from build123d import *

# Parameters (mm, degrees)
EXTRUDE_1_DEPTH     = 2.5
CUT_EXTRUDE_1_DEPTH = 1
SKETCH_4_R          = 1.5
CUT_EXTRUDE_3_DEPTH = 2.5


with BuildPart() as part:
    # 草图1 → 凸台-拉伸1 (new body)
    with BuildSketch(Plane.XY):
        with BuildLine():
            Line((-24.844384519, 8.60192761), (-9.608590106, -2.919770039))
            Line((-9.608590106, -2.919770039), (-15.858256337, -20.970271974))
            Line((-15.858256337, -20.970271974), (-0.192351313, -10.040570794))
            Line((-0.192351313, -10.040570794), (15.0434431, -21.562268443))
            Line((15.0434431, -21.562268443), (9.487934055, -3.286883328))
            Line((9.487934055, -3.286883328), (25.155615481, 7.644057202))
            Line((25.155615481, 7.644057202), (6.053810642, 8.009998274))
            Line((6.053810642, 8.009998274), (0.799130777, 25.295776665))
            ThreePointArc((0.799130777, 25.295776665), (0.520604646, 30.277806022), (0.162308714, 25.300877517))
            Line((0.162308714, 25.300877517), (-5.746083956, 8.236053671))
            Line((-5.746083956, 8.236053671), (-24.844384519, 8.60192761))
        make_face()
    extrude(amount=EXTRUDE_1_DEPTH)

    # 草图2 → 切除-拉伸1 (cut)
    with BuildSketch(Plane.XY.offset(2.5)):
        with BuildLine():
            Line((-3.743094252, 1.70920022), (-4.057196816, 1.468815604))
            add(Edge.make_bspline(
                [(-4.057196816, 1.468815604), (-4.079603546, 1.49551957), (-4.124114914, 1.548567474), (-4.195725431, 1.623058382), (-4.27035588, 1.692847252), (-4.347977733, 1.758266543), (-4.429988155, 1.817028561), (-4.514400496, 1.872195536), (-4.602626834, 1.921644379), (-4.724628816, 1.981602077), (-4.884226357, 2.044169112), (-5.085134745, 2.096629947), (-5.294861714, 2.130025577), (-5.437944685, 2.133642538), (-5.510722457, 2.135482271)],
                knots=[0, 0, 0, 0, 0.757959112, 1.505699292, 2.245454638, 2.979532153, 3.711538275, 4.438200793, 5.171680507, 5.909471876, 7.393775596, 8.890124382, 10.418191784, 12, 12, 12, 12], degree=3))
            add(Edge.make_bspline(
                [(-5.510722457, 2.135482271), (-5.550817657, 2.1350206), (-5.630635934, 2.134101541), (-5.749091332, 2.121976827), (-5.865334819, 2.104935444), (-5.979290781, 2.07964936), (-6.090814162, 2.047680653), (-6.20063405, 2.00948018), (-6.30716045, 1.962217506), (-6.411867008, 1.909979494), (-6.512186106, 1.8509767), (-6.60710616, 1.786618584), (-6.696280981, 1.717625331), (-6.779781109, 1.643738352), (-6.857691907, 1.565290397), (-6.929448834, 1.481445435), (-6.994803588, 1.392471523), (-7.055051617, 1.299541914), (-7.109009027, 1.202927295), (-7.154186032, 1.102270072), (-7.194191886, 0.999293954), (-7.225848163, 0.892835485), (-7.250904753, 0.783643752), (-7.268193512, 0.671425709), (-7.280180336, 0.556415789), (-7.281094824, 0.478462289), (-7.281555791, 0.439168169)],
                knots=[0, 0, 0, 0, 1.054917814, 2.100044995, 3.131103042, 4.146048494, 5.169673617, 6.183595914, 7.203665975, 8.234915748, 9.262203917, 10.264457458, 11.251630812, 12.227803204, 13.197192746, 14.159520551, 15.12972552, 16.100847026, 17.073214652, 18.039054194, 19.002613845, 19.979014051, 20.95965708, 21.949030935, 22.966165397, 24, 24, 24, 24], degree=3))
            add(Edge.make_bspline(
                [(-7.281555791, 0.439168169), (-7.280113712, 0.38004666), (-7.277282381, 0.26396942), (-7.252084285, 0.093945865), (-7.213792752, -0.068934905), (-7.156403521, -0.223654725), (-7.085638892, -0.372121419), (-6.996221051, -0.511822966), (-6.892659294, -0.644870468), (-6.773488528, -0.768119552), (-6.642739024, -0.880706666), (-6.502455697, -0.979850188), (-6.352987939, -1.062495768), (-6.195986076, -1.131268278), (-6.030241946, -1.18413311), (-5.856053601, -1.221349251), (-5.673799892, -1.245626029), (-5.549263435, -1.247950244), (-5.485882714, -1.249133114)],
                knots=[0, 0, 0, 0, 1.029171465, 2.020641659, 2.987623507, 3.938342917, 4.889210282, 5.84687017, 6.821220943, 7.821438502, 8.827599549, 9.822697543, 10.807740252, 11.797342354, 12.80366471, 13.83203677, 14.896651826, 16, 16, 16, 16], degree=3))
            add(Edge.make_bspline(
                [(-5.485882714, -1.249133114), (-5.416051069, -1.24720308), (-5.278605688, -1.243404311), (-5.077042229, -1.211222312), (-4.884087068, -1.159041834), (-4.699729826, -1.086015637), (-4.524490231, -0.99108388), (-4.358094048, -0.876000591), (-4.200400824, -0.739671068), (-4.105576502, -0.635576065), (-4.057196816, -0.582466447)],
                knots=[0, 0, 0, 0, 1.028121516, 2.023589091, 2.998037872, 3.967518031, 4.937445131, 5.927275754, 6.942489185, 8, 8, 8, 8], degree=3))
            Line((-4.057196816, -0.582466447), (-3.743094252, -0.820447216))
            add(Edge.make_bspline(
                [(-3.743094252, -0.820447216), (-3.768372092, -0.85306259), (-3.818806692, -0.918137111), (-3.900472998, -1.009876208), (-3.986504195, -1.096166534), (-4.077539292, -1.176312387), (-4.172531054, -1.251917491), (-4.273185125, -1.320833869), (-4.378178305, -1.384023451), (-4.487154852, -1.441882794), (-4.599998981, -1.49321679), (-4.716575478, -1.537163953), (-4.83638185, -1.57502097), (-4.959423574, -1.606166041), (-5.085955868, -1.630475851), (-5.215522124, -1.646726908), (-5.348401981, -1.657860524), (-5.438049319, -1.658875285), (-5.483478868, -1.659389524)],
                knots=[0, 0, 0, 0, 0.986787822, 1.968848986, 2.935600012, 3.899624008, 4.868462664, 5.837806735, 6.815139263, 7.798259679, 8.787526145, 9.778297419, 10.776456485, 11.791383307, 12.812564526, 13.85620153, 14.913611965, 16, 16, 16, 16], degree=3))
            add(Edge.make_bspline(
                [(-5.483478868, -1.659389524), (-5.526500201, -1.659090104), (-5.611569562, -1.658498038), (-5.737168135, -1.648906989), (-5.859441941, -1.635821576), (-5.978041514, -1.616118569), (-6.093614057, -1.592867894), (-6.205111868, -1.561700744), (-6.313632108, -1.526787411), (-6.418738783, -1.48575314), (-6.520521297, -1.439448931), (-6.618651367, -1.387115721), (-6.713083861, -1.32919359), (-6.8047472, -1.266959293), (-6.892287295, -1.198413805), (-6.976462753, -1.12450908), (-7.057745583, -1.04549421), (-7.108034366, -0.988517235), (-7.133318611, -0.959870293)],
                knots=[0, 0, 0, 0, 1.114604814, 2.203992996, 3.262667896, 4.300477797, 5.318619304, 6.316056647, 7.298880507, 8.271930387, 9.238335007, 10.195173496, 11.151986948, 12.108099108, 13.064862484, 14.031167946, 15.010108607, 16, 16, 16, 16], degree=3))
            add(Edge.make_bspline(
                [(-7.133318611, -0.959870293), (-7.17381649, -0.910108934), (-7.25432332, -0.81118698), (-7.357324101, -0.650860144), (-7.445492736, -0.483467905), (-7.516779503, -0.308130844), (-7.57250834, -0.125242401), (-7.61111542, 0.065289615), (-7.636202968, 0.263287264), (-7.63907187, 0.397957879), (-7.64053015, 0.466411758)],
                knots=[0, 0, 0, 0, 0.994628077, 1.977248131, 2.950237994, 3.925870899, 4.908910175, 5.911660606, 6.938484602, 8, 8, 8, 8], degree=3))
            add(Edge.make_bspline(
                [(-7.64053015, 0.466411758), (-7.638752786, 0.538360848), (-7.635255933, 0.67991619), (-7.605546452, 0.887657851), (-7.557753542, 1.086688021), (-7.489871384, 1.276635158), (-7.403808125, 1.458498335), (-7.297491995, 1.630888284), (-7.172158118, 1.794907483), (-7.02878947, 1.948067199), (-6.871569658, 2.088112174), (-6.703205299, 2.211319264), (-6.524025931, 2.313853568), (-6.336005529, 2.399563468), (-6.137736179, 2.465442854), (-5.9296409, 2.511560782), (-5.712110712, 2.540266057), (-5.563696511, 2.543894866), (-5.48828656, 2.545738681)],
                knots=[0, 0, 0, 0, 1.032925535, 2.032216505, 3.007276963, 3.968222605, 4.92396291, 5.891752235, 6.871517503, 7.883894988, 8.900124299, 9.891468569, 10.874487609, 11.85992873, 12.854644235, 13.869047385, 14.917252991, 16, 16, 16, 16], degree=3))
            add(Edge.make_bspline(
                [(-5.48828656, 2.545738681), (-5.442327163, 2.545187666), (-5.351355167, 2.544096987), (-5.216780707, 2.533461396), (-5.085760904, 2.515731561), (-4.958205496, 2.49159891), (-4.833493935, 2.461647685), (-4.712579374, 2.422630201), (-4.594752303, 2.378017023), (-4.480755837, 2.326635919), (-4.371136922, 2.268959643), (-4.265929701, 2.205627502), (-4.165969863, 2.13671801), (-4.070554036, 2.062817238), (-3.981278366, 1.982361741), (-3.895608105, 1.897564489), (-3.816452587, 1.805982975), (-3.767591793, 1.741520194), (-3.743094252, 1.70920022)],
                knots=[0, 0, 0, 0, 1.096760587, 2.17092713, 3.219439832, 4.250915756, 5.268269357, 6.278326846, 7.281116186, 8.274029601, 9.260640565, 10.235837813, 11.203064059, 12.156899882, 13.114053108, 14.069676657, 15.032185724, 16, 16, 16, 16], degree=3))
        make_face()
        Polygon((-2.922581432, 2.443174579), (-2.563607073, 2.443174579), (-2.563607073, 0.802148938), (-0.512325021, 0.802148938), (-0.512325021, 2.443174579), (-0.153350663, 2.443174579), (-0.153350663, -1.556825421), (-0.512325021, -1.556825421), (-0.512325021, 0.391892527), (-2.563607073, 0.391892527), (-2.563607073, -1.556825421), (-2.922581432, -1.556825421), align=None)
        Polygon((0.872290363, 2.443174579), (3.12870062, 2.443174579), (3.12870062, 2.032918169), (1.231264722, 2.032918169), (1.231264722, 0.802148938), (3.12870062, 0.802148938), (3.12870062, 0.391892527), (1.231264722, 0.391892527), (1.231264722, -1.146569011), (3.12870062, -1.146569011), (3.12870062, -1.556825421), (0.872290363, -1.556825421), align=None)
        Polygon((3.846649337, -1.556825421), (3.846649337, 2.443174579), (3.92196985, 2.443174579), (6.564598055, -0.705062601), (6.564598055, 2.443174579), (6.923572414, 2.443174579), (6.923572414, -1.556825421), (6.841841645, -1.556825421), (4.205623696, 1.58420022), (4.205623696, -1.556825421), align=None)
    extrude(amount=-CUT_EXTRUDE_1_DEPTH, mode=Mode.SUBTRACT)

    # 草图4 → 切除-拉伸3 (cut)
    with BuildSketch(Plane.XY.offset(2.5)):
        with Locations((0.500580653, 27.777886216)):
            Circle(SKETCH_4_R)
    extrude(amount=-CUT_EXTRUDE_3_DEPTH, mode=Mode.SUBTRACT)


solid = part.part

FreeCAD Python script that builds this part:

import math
import FreeCAD as App
import Part
import Sketcher

V = App.Vector
Q = App.Units.Quantity


def add_polygon(sketch, points):
    """Adds a closed chain of lines whose ends are joined by coincident constraints."""
    first, n = sketch.GeometryCount, len(points)
    for a, b in zip(points, points[1:] + points[:1]):
        sketch.addGeometry(Part.LineSegment(App.Vector(*a, 0), App.Vector(*b, 0)), False)
    for i in range(n):
        sketch.addConstraint(Sketcher.Constraint("Coincident", first + i, 2, first + (i + 1) % n, 1))

doc = App.newDocument("Part")
body = doc.addObject("PartDesign::Body", "Body")

# Sketch on XY plane
sketch1 = doc.addObject("Sketcher::SketchObject", "Sketch")
body.addObject(sketch1)
sketch1.AttachmentSupport = (doc.XY_Plane, [""])
sketch1.MapMode = "FlatFace"
sketch1.addGeometry(Part.LineSegment(V(-24.844385, 8.601928, 0), V(-9.60859, -2.91977, 0)), False)
sketch1.addGeometry(Part.LineSegment(V(-9.60859, -2.91977, 0), V(-15.858256, -20.970272, 0)), False)
sketch1.addGeometry(Part.LineSegment(V(-15.858256, -20.970272, 0), V(-0.192351, -10.040571, 0)), False)
sketch1.addGeometry(Part.LineSegment(V(-0.192351, -10.040571, 0), V(15.043443, -21.562268, 0)), False)
sketch1.addGeometry(Part.LineSegment(V(15.043443, -21.562268, 0), V(9.487934, -3.286883, 0)), False)
sketch1.addGeometry(Part.LineSegment(V(9.487934, -3.286883, 0), V(25.155615, 7.644057, 0)), False)
sketch1.addGeometry(Part.LineSegment(V(25.155615, 7.644057, 0), V(6.053811, 8.009998, 0)), False)
sketch1.addGeometry(Part.LineSegment(V(6.053811, 8.009998, 0), V(0.799131, 25.295777, 0)), False)
sketch1.addGeometry(Part.ArcOfCircle(Part.Circle(V(0.500581, 27.777886, 0), V(0, 0, 1), 2.5), math.radians(-83.141367), math.radians(262.223525)), False)
sketch1.addGeometry(Part.LineSegment(V(0.162309, 25.300878, 0), V(-5.746084, 8.236054, 0)), False)
sketch1.addGeometry(Part.LineSegment(V(-5.746084, 8.236054, 0), V(-24.844385, 8.601928, 0)), False)
sketch1.addConstraint(Sketcher.Constraint("Coincident", 0, 2, 1, 1))
sketch1.addConstraint(Sketcher.Constraint("Coincident", 1, 2, 2, 1))
sketch1.addConstraint(Sketcher.Constraint("Coincident", 2, 2, 3, 1))
sketch1.addConstraint(Sketcher.Constraint("Coincident", 3, 2, 4, 1))
sketch1.addConstraint(Sketcher.Constraint("Coincident", 4, 2, 5, 1))
sketch1.addConstraint(Sketcher.Constraint("Coincident", 5, 2, 6, 1))
sketch1.addConstraint(Sketcher.Constraint("Coincident", 6, 2, 7, 1))
sketch1.addConstraint(Sketcher.Constraint("Coincident", 7, 2, 8, 1))
sketch1.addConstraint(Sketcher.Constraint("Coincident", 8, 2, 9, 1))
sketch1.addConstraint(Sketcher.Constraint("Coincident", 9, 2, 10, 1))
sketch1.addConstraint(Sketcher.Constraint("Coincident", 10, 2, 0, 1))
sketch1.addConstraint(Sketcher.Constraint("Radius", 8, Q("2.5 mm")))
sketch1.addConstraint(Sketcher.Constraint("DistanceY", -1, 1, 6, 2, Q("8.009998 mm")))
sketch1.addConstraint(Sketcher.Constraint("DistanceY", 1, 2, 0, 2, Q("18.050502 mm")))
sketch1.addConstraint(Sketcher.Constraint("DistanceY", 2, 2, 0, 2, Q("7.120801 mm")))
sketch1.addConstraint(Sketcher.Constraint("DistanceX", 1, 2, 3, 2, Q("30.901699 mm")))
sketch1.addConstraint(Sketcher.Constraint("DistanceY", 3, 2, 0, 2, Q("18.642498 mm")))
sketch1.addConstraint(Sketcher.Constraint("DistanceX", 0, 2, 6, 2, Q("15.662401 mm")))
sketch1.addConstraint(Sketcher.Constraint("DistanceY", 7, 2, 8, 2, Q("0.005101 mm")))
sketch1.addConstraint(Sketcher.Constraint("DistanceX", 8, 2, 6, 2, Q("5.891502 mm")))
sketch1.addConstraint(Sketcher.Constraint("DistanceX", 10, 2, 9, 2, Q("19.098301 mm")))
sketch1.addConstraint(Sketcher.Constraint("Distance", 5, Q("19.103971 mm")))
sketch1.addConstraint(Sketcher.Constraint("Distance", 6, Q("19.10531 mm")))
sketch1.addConstraint(Sketcher.Constraint("Distance", 9, Q("18.058719 mm")))
sketch1.addConstraint(Sketcher.Constraint("DistanceX", -1, 1, 8, 3, Q("0.500581 mm")))
sketch1.addConstraint(Sketcher.Constraint("DistanceX", 0, 2, -1, 1, Q("9.60859 mm")))
sketch1.addConstraint(Sketcher.Constraint("DistanceY", 0, 2, -1, 1, Q("2.91977 mm")))
sketch1.addConstraint(Sketcher.Constraint("DistanceX", 2, 2, -1, 1, Q("0.192351 mm")))
sketch1.addConstraint(Sketcher.Constraint("DistanceY", 1, 2, 8, 3, Q("48.748158 mm")))
sketch1.addConstraint(Sketcher.Constraint("DistanceX", 4, 2, 3, 2, Q("5.555509 mm")))
sketch1.addConstraint(Sketcher.Constraint("DistanceY", 1, 2, 4, 2, Q("17.683389 mm")))
sketch1.addConstraint(Sketcher.Constraint("DistanceX", 4, 2, 5, 2, Q("15.667681 mm")))
sketch1.addConstraint(Sketcher.Constraint("DistanceX", 9, 2, 4, 2, Q("15.234018 mm")))
sketch1.addConstraint(Sketcher.Constraint("DistanceY", 10, 2, 8, 2, Q("16.69895 mm")))
pad1 = doc.addObject("PartDesign::Pad", "Pad")
body.addObject(pad1)
pad1.Profile = sketch1
pad1.Length = 2.5

# Sketch on XY plane
sketch2 = doc.addObject("Sketcher::SketchObject", "Sketch001")
body.addObject(sketch2)
sketch2.AttachmentSupport = (doc.XY_Plane, [""])
sketch2.MapMode = "FlatFace"
sketch2.AttachmentOffset = App.Placement(V(0, 0, 2.5), App.Rotation())
sketch2.addGeometry(Part.LineSegment(V(-4.057197, 1.468816, 0), V(-3.743094, 1.7092, 0)), False)  # 0
sketch2.addGeometry(Part.BSplineCurve([V(-5.488287, 2.545739, 0), V(-5.442327, 2.545188, 0), V(-5.351355, 2.544097, 0), V(-5.216781, 2.533461, 0), V(-5.085761, 2.515732, 0), V(-4.958205, 2.491599, 0), V(-4.833494, 2.461648, 0), V(-4.712579, 2.42263, 0), V(-4.594752, 2.378017, 0), V(-4.480756, 2.326636, 0), V(-4.371137, 2.26896, 0), V(-4.26593, 2.205628, 0), V(-4.16597, 2.136718, 0), V(-4.070554, 2.062817, 0), V(-3.981278, 1.982362, 0), V(-3.895608, 1.897564, 0), V(-3.816453, 1.805983, 0), V(-3.767592, 1.74152, 0), V(-3.743094, 1.7092, 0)], [4, 1, 1, 1, 1, 1, 1, 1, 1, 1, 1, 1, 1, 1, 1, 1, 4], [0, 1.096760587, 2.17092713, 3.219439832, 4.250915756, 5.268269357, 6.278326846, 7.281116186, 8.274029601, 9.260640565, 10.235837813, 11.203064059, 12.156899882, 13.114053108, 14.069676657, 15.032185724, 16], False, 3, [1, 1, 1, 1, 1, 1, 1, 1, 1, 1, 1, 1, 1, 1, 1, 1, 1, 1, 1], False), False)  # 1
sketch2.addGeometry(Part.BSplineCurve([V(-7.64053, 0.466412, 0), V(-7.638753, 0.538361, 0), V(-7.635256, 0.679916, 0), V(-7.605546, 0.887658, 0), V(-7.557754, 1.086688, 0), V(-7.489871, 1.276635, 0), V(-7.403808, 1.458498, 0), V(-7.297492, 1.630888, 0), V(-7.172158, 1.794907, 0), V(-7.028789, 1.948067, 0), V(-6.87157, 2.088112, 0), V(-6.703205, 2.211319, 0), V(-6.524026, 2.313854, 0), V(-6.336006, 2.399563, 0), V(-6.137736, 2.465443, 0), V(-5.929641, 2.511561, 0), V(-5.712111, 2.540266, 0), V(-5.563697, 2.543895, 0), V(-5.488287, 2.545739, 0)], [4, 1, 1, 1, 1, 1, 1, 1, 1, 1, 1, 1, 1, 1, 1, 1, 4], [0, 1.032925535, 2.032216505, 3.007276963, 3.968222605, 4.92396291, 5.891752235, 6.871517503, 7.883894988, 8.900124299, 9.891468569, 10.874487609, 11.85992873, 12.854644235, 13.869047385, 14.917252991, 16], False, 3, [1, 1, 1, 1, 1, 1, 1, 1, 1, 1, 1, 1, 1, 1, 1, 1, 1, 1, 1], False), False)  # 2
sketch2.addGeometry(Part.BSplineCurve([V(-7.133319, -0.95987, 0), V(-7.173816, -0.910109, 0), V(-7.254323, -0.811187, 0), V(-7.357324, -0.65086, 0), V(-7.445493, -0.483468, 0), V(-7.51678, -0.308131, 0), V(-7.572508, -0.125242, 0), V(-7.611115, 0.06529, 0), V(-7.636203, 0.263287, 0), V(-7.639072, 0.397958, 0), V(-7.64053, 0.466412, 0)], [4, 1, 1, 1, 1, 1, 1, 1, 4], [0, 0.994628077, 1.977248131, 2.950237994, 3.925870899, 4.908910175, 5.911660606, 6.938484602, 8], False, 3, [1, 1, 1, 1, 1, 1, 1, 1, 1, 1, 1], False), False)  # 3
sketch2.addGeometry(Part.BSplineCurve([V(-5.483479, -1.65939, 0), V(-5.5265, -1.65909, 0), V(-5.61157, -1.658498, 0), V(-5.737168, -1.648907, 0), V(-5.859442, -1.635822, 0), V(-5.978042, -1.616119, 0), V(-6.093614, -1.592868, 0), V(-6.205112, -1.561701, 0), V(-6.313632, -1.526787, 0), V(-6.418739, -1.485753, 0), V(-6.520521, -1.439449, 0), V(-6.618651, -1.387116, 0), V(-6.713084, -1.329194, 0), V(-6.804747, -1.266959, 0), V(-6.892287, -1.198414, 0), V(-6.976463, -1.124509, 0), V(-7.057746, -1.045494, 0), V(-7.108034, -0.988517, 0), V(-7.133319, -0.95987, 0)], [4, 1, 1, 1, 1, 1, 1, 1, 1, 1, 1, 1, 1, 1, 1, 1, 4], [0, 1.114604814, 2.203992996, 3.262667896, 4.300477797, 5.318619304, 6.316056647, 7.298880507, 8.271930387, 9.238335007, 10.195173496, 11.151986948, 12.108099108, 13.064862484, 14.031167946, 15.010108607, 16], False, 3, [1, 1, 1, 1, 1, 1, 1, 1, 1, 1, 1, 1, 1, 1, 1, 1, 1, 1, 1], False), False)  # 4
sketch2.addGeometry(Part.BSplineCurve([V(-3.743094, -0.820447, 0), V(-3.768372, -0.853063, 0), V(-3.818807, -0.918137, 0), V(-3.900473, -1.009876, 0), V(-3.986504, -1.096167, 0), V(-4.077539, -1.176312, 0), V(-4.172531, -1.251917, 0), V(-4.273185, -1.320834, 0), V(-4.378178, -1.384023, 0), V(-4.487155, -1.441883, 0), V(-4.599999, -1.493217, 0), V(-4.716575, -1.537164, 0), V(-4.836382, -1.575021, 0), V(-4.959424, -1.606166, 0), V(-5.085956, -1.630476, 0), V(-5.215522, -1.646727, 0), V(-5.348402, -1.657861, 0), V(-5.438049, -1.658875, 0), V(-5.483479, -1.65939, 0)], [4, 1, 1, 1, 1, 1, 1, 1, 1, 1, 1, 1, 1, 1, 1, 1, 4], [0, 0.986787822, 1.968848986, 2.935600012, 3.899624008, 4.868462664, 5.837806735, 6.815139263, 7.798259679, 8.787526145, 9.778297419, 10.776456485, 11.791383307, 12.812564526, 13.85620153, 14.913611965, 16], False, 3, [1, 1, 1, 1, 1, 1, 1, 1, 1, 1, 1, 1, 1, 1, 1, 1, 1, 1, 1], False), False)  # 5
sketch2.addGeometry(Part.LineSegment(V(-3.743094, -0.820447, 0), V(-4.057197, -0.582466, 0)), False)  # 6
sketch2.addGeometry(Part.BSplineCurve([V(-5.485883, -1.249133, 0), V(-5.416051, -1.247203, 0), V(-5.278606, -1.243404, 0), V(-5.077042, -1.211222, 0), V(-4.884087, -1.159042, 0), V(-4.69973, -1.086016, 0), V(-4.52449, -0.991084, 0), V(-4.358094, -0.876001, 0), V(-4.200401, -0.739671, 0), V(-4.105577, -0.635576, 0), V(-4.057197, -0.582466, 0)], [4, 1, 1, 1, 1, 1, 1, 1, 4], [0, 1.028121516, 2.023589091, 2.998037872, 3.967518031, 4.937445131, 5.927275754, 6.942489185, 8], False, 3, [1, 1, 1, 1, 1, 1, 1, 1, 1, 1, 1], False), False)  # 7
sketch2.addGeometry(Part.BSplineCurve([V(-7.281556, 0.439168, 0), V(-7.280114, 0.380047, 0), V(-7.277282, 0.263969, 0), V(-7.252084, 0.093946, 0), V(-7.213793, -0.068935, 0), V(-7.156404, -0.223655, 0), V(-7.085639, -0.372121, 0), V(-6.996221, -0.511823, 0), V(-6.892659, -0.64487, 0), V(-6.773489, -0.76812, 0), V(-6.642739, -0.880707, 0), V(-6.502456, -0.97985, 0), V(-6.352988, -1.062496, 0), V(-6.195986, -1.131268, 0), V(-6.030242, -1.184133, 0), V(-5.856054, -1.221349, 0), V(-5.6738, -1.245626, 0), V(-5.549263, -1.24795, 0), V(-5.485883, -1.249133, 0)], [4, 1, 1, 1, 1, 1, 1, 1, 1, 1, 1, 1, 1, 1, 1, 1, 4], [0, 1.029171465, 2.020641659, 2.987623507, 3.938342917, 4.889210282, 5.84687017, 6.821220943, 7.821438502, 8.827599549, 9.822697543, 10.807740252, 11.797342354, 12.80366471, 13.83203677, 14.896651826, 16], False, 3, [1, 1, 1, 1, 1, 1, 1, 1, 1, 1, 1, 1, 1, 1, 1, 1, 1, 1, 1], False), False)  # 8
sketch2.addGeometry(Part.BSplineCurve([V(-5.510722, 2.135482, 0), V(-5.550818, 2.135021, 0), V(-5.630636, 2.134102, 0), V(-5.749091, 2.121977, 0), V(-5.865335, 2.104935, 0), V(-5.979291, 2.079649, 0), V(-6.090814, 2.047681, 0), V(-6.200634, 2.00948, 0), V(-6.30716, 1.962218, 0), V(-6.411867, 1.909979, 0), V(-6.512186, 1.850977, 0), V(-6.607106, 1.786619, 0), V(-6.696281, 1.717625, 0), V(-6.779781, 1.643738, 0), V(-6.857692, 1.56529, 0), V(-6.929449, 1.481445, 0), V(-6.994804, 1.392472, 0), V(-7.055052, 1.299542, 0), V(-7.109009, 1.202927, 0), V(-7.154186, 1.10227, 0), V(-7.194192, 0.999294, 0), V(-7.225848, 0.892835, 0), V(-7.250905, 0.783644, 0), V(-7.268194, 0.671426, 0), V(-7.28018, 0.556416, 0), V(-7.281095, 0.478462, 0), V(-7.281556, 0.439168, 0)], [4, 1, 1, 1, 1, 1, 1, 1, 1, 1, 1, 1, 1, 1, 1, 1, 1, 1, 1, 1, 1, 1, 1, 1, 4], [0, 1.054917814, 2.100044995, 3.131103042, 4.146048494, 5.169673617, 6.183595914, 7.203665975, 8.234915748, 9.262203917, 10.264457458, 11.251630812, 12.227803204, 13.197192746, 14.159520551, 15.12972552, 16.100847026, 17.073214652, 18.039054194, 19.002613845, 19.979014051, 20.95965708, 21.949030935, 22.966165397, 24], False, 3, [1, 1, 1, 1, 1, 1, 1, 1, 1, 1, 1, 1, 1, 1, 1, 1, 1, 1, 1, 1, 1, 1, 1, 1, 1, 1, 1], False), False)  # 9
sketch2.addGeometry(Part.BSplineCurve([V(-4.057197, 1.468816, 0), V(-4.079604, 1.49552, 0), V(-4.124115, 1.548567, 0), V(-4.195725, 1.623058, 0), V(-4.270356, 1.692847, 0), V(-4.347978, 1.758267, 0), V(-4.429988, 1.817029, 0), V(-4.5144, 1.872196, 0), V(-4.602627, 1.921644, 0), V(-4.724629, 1.981602, 0), V(-4.884226, 2.044169, 0), V(-5.085135, 2.09663, 0), V(-5.294862, 2.130026, 0), V(-5.437945, 2.133643, 0), V(-5.510722, 2.135482, 0)], [4, 1, 1, 1, 1, 1, 1, 1, 1, 1, 1, 1, 4], [0, 0.757959112, 1.505699292, 2.245454638, 2.979532153, 3.711538275, 4.438200793, 5.171680507, 5.909471876, 7.393775596, 8.890124382, 10.418191784, 12], False, 3, [1, 1, 1, 1, 1, 1, 1, 1, 1, 1, 1, 1, 1, 1, 1], False), False)  # 10
add_polygon(sketch2, [(-2.563607, 2.443175), (-2.922581, 2.443175), (-2.922581, -1.556825), (-2.563607, -1.556825), (-2.563607, 0.391893), (-0.512325, 0.391893), (-0.512325, -1.556825), (-0.153351, -1.556825), (-0.153351, 2.443175), (-0.512325, 2.443175), (-0.512325, 0.802149), (-2.563607, 0.802149)])  # lines 11-22
add_polygon(sketch2, [(3.128701, 2.443175), (0.87229, 2.443175), (0.87229, -1.556825), (3.128701, -1.556825), (3.128701, -1.146569), (1.231265, -1.146569), (1.231265, 0.391893), (3.128701, 0.391893), (3.128701, 0.802149), (1.231265, 0.802149), (1.231265, 2.032918), (3.128701, 2.032918)])  # lines 23-34
add_polygon(sketch2, [(3.846649, 2.443175), (3.846649, -1.556825), (4.205624, -1.556825), (4.205624, 1.5842), (6.841842, -1.556825), (6.923572, -1.556825), (6.923572, 2.443175), (6.564598, 2.443175), (6.564598, -0.705063), (3.92197, 2.443175)])  # lines 35-44
sketch2.addConstraint(Sketcher.Constraint("Block", 1))
sketch2.addConstraint(Sketcher.Constraint("Block", 2))
sketch2.addConstraint(Sketcher.Constraint("Block", 3))
sketch2.addConstraint(Sketcher.Constraint("Block", 4))
sketch2.addConstraint(Sketcher.Constraint("Block", 5))
sketch2.addConstraint(Sketcher.Constraint("Block", 7))
sketch2.addConstraint(Sketcher.Constraint("Block", 8))
sketch2.addConstraint(Sketcher.Constraint("Block", 9))
sketch2.addConstraint(Sketcher.Constraint("Block", 10))
sketch2.addConstraint(Sketcher.Constraint("Coincident", 0, 2, 1, 2))
sketch2.addConstraint(Sketcher.Constraint("Coincident", 5, 1, 6, 1))
sketch2.addConstraint(Sketcher.Constraint("Coincident", 6, 2, 7, 2))
sketch2.addConstraint(Sketcher.Constraint("Coincident", 10, 1, 0, 1))
sketch2.addConstraint(Sketcher.Constraint("Horizontal", 11))
sketch2.addConstraint(Sketcher.Constraint("Vertical", 12))
sketch2.addConstraint(Sketcher.Constraint("Horizontal", 13))
sketch2.addConstraint(Sketcher.Constraint("Vertical", 14))
sketch2.addConstraint(Sketcher.Constraint("Horizontal", 15))
sketch2.addConstraint(Sketcher.Constraint("Vertical", 16))
sketch2.addConstraint(Sketcher.Constraint("Horizontal", 17))
sketch2.addConstraint(Sketcher.Constraint("Vertical", 18))
sketch2.addConstraint(Sketcher.Constraint("Horizontal", 19))
sketch2.addConstraint(Sketcher.Constraint("Vertical", 20))
sketch2.addConstraint(Sketcher.Constraint("Horizontal", 21))
sketch2.addConstraint(Sketcher.Constraint("Vertical", 22))
sketch2.addConstraint(Sketcher.Constraint("Horizontal", 23))
sketch2.addConstraint(Sketcher.Constraint("Vertical", 24))
sketch2.addConstraint(Sketcher.Constraint("Horizontal", 25))
sketch2.addConstraint(Sketcher.Constraint("Vertical", 26))
sketch2.addConstraint(Sketcher.Constraint("Horizontal", 27))
sketch2.addConstraint(Sketcher.Constraint("Vertical", 28))
sketch2.addConstraint(Sketcher.Constraint("Horizontal", 29))
sketch2.addConstraint(Sketcher.Constraint("Vertical", 30))
sketch2.addConstraint(Sketcher.Constraint("Horizontal", 31))
sketch2.addConstraint(Sketcher.Constraint("Vertical", 32))
sketch2.addConstraint(Sketcher.Constraint("Horizontal", 33))
sketch2.addConstraint(Sketcher.Constraint("Vertical", 34))
sketch2.addConstraint(Sketcher.Constraint("Vertical", 35))
sketch2.addConstraint(Sketcher.Constraint("Horizontal", 36))
sketch2.addConstraint(Sketcher.Constraint("Vertical", 37))
sketch2.addConstraint(Sketcher.Constraint("Horizontal", 39))
sketch2.addConstraint(Sketcher.Constraint("Vertical", 40))
sketch2.addConstraint(Sketcher.Constraint("Horizontal", 41))
sketch2.addConstraint(Sketcher.Constraint("Vertical", 42))
sketch2.addConstraint(Sketcher.Constraint("Horizontal", 44))
sketch2.addConstraint(Sketcher.Constraint("Horizontal", 13, 2, 16, 2))
sketch2.addConstraint(Sketcher.Constraint("Horizontal", 11, 2, 18, 2))
sketch2.addConstraint(Sketcher.Constraint("Horizontal", 22, 2, 23, 2))
sketch2.addConstraint(Sketcher.Constraint("Horizontal", 17, 2, 24, 2))
sketch2.addConstraint(Sketcher.Constraint("Horizontal", 15, 2, 28, 2))
sketch2.addConstraint(Sketcher.Constraint("Horizontal", 21, 2, 30, 2))
sketch2.addConstraint(Sketcher.Constraint("Horizontal", 25, 2, 35, 2))
sketch2.addConstraint(Sketcher.Constraint("Horizontal", 36, 2, 38, 2))
sketch2.addConstraint(Sketcher.Constraint("Horizontal", 34, 2, 40, 2))
sketch2.addConstraint(Sketcher.Constraint("Horizontal", 41, 2, 43, 2))
sketch2.addConstraint(Sketcher.Constraint("Vertical", 16, 2, 19, 2))
sketch2.addConstraint(Sketcher.Constraint("Vertical", 14, 2, 21, 2))
sketch2.addConstraint(Sketcher.Constraint("Vertical", 26, 2, 29, 2))
sketch2.addConstraint(Sketcher.Constraint("Vertical", 28, 2, 31, 2))
sketch2.addConstraint(Sketcher.Constraint("Vertical", 30, 2, 33, 2))
sketch2.addConstraint(Sketcher.Constraint("Equal", 13, 17))
sketch2.addConstraint(Sketcher.Constraint("Equal", 19, 36))
sketch2.addConstraint(Sketcher.Constraint("Equal", 36, 41))
sketch2.addConstraint(Sketcher.Constraint("Equal", 26, 30))
sketch2.addConstraint(Sketcher.Constraint("Equal", 30, 34))
sketch2.addConstraint(Sketcher.Constraint("DistanceY", 12, 2, 12, 1, Q("4 mm")))
sketch2.addConstraint(Sketcher.Constraint("DistanceX", 23, 2, 23, 1, Q("2.25641 mm")))
sketch2.addConstraint(Sketcher.Constraint("DistanceX", 39, 1, 39, 2, Q("0.081731 mm")))
sketch2.addConstraint(Sketcher.Constraint("DistanceX", 44, 2, 44, 1, Q("0.075321 mm")))
sketch2.addConstraint(Sketcher.Constraint("DistanceY", 28, 1, 28, 2, Q("1.538462 mm")))
sketch2.addConstraint(Sketcher.Constraint("DistanceY", 32, 1, 32, 2, Q("1.230769 mm")))
sketch2.addConstraint(Sketcher.Constraint("DistanceX", -1, 1, 25, 2, Q("3.128701 mm")))
sketch2.addConstraint(Sketcher.Constraint("DistanceY", -1, 1, 37, 2, Q("1.5842 mm")))
sketch2.addConstraint(Sketcher.Constraint("DistanceX", -1, 1, 41, 2, Q("6.564598 mm")))
sketch2.addConstraint(Sketcher.Constraint("Distance", 43, Q("4.110338 mm")))
sketch2.addConstraint(Sketcher.Constraint("DistanceX", 11, 2, 11, 1, Q("0.358974 mm")))
sketch2.addConstraint(Sketcher.Constraint("DistanceX", 15, 1, 15, 2, Q("2.051282 mm")))
sketch2.addConstraint(Sketcher.Constraint("DistanceX", 27, 2, 27, 1, Q("1.897436 mm")))
sketch2.addConstraint(Sketcher.Constraint("DistanceY", 37, 1, 37, 2, Q("3.141026 mm")))
sketch2.addConstraint(Sketcher.Constraint("DistanceY", 42, 2, 42, 1, Q("3.148237 mm")))
sketch2.addConstraint(Sketcher.Constraint("DistanceX", 11, 2, -1, 1, Q("2.922581 mm")))
pocket1 = doc.addObject("PartDesign::Pocket", "Pocket")
body.addObject(pocket1)
pocket1.Profile = sketch2
pocket1.Length = 1

# Sketch on XY plane
sketch3 = doc.addObject("Sketcher::SketchObject", "Sketch002")
body.addObject(sketch3)
sketch3.AttachmentSupport = (doc.XY_Plane, [""])
sketch3.MapMode = "FlatFace"
sketch3.AttachmentOffset = App.Placement(V(0, 0, 2.5), App.Rotation())
sketch3.addGeometry(Part.Circle(V(0.5, 27.8, 0), V(0, 0, 1), 1.5), False)
sketch3.addConstraint(Sketcher.Constraint("Diameter", 0, Q("3 mm")))
sketch3.addConstraint(Sketcher.Constraint("DistanceX", -1, 1, 0, 3, Q("0.500581 mm")))
sketch3.addConstraint(Sketcher.Constraint("DistanceY", -1, 1, 0, 3, Q("27.777886 mm")))
pocket2 = doc.addObject("PartDesign::Pocket", "Pocket001")
body.addObject(pocket2)
pocket2.Profile = sketch3
pocket2.Length = 2.5

doc.recompute()
